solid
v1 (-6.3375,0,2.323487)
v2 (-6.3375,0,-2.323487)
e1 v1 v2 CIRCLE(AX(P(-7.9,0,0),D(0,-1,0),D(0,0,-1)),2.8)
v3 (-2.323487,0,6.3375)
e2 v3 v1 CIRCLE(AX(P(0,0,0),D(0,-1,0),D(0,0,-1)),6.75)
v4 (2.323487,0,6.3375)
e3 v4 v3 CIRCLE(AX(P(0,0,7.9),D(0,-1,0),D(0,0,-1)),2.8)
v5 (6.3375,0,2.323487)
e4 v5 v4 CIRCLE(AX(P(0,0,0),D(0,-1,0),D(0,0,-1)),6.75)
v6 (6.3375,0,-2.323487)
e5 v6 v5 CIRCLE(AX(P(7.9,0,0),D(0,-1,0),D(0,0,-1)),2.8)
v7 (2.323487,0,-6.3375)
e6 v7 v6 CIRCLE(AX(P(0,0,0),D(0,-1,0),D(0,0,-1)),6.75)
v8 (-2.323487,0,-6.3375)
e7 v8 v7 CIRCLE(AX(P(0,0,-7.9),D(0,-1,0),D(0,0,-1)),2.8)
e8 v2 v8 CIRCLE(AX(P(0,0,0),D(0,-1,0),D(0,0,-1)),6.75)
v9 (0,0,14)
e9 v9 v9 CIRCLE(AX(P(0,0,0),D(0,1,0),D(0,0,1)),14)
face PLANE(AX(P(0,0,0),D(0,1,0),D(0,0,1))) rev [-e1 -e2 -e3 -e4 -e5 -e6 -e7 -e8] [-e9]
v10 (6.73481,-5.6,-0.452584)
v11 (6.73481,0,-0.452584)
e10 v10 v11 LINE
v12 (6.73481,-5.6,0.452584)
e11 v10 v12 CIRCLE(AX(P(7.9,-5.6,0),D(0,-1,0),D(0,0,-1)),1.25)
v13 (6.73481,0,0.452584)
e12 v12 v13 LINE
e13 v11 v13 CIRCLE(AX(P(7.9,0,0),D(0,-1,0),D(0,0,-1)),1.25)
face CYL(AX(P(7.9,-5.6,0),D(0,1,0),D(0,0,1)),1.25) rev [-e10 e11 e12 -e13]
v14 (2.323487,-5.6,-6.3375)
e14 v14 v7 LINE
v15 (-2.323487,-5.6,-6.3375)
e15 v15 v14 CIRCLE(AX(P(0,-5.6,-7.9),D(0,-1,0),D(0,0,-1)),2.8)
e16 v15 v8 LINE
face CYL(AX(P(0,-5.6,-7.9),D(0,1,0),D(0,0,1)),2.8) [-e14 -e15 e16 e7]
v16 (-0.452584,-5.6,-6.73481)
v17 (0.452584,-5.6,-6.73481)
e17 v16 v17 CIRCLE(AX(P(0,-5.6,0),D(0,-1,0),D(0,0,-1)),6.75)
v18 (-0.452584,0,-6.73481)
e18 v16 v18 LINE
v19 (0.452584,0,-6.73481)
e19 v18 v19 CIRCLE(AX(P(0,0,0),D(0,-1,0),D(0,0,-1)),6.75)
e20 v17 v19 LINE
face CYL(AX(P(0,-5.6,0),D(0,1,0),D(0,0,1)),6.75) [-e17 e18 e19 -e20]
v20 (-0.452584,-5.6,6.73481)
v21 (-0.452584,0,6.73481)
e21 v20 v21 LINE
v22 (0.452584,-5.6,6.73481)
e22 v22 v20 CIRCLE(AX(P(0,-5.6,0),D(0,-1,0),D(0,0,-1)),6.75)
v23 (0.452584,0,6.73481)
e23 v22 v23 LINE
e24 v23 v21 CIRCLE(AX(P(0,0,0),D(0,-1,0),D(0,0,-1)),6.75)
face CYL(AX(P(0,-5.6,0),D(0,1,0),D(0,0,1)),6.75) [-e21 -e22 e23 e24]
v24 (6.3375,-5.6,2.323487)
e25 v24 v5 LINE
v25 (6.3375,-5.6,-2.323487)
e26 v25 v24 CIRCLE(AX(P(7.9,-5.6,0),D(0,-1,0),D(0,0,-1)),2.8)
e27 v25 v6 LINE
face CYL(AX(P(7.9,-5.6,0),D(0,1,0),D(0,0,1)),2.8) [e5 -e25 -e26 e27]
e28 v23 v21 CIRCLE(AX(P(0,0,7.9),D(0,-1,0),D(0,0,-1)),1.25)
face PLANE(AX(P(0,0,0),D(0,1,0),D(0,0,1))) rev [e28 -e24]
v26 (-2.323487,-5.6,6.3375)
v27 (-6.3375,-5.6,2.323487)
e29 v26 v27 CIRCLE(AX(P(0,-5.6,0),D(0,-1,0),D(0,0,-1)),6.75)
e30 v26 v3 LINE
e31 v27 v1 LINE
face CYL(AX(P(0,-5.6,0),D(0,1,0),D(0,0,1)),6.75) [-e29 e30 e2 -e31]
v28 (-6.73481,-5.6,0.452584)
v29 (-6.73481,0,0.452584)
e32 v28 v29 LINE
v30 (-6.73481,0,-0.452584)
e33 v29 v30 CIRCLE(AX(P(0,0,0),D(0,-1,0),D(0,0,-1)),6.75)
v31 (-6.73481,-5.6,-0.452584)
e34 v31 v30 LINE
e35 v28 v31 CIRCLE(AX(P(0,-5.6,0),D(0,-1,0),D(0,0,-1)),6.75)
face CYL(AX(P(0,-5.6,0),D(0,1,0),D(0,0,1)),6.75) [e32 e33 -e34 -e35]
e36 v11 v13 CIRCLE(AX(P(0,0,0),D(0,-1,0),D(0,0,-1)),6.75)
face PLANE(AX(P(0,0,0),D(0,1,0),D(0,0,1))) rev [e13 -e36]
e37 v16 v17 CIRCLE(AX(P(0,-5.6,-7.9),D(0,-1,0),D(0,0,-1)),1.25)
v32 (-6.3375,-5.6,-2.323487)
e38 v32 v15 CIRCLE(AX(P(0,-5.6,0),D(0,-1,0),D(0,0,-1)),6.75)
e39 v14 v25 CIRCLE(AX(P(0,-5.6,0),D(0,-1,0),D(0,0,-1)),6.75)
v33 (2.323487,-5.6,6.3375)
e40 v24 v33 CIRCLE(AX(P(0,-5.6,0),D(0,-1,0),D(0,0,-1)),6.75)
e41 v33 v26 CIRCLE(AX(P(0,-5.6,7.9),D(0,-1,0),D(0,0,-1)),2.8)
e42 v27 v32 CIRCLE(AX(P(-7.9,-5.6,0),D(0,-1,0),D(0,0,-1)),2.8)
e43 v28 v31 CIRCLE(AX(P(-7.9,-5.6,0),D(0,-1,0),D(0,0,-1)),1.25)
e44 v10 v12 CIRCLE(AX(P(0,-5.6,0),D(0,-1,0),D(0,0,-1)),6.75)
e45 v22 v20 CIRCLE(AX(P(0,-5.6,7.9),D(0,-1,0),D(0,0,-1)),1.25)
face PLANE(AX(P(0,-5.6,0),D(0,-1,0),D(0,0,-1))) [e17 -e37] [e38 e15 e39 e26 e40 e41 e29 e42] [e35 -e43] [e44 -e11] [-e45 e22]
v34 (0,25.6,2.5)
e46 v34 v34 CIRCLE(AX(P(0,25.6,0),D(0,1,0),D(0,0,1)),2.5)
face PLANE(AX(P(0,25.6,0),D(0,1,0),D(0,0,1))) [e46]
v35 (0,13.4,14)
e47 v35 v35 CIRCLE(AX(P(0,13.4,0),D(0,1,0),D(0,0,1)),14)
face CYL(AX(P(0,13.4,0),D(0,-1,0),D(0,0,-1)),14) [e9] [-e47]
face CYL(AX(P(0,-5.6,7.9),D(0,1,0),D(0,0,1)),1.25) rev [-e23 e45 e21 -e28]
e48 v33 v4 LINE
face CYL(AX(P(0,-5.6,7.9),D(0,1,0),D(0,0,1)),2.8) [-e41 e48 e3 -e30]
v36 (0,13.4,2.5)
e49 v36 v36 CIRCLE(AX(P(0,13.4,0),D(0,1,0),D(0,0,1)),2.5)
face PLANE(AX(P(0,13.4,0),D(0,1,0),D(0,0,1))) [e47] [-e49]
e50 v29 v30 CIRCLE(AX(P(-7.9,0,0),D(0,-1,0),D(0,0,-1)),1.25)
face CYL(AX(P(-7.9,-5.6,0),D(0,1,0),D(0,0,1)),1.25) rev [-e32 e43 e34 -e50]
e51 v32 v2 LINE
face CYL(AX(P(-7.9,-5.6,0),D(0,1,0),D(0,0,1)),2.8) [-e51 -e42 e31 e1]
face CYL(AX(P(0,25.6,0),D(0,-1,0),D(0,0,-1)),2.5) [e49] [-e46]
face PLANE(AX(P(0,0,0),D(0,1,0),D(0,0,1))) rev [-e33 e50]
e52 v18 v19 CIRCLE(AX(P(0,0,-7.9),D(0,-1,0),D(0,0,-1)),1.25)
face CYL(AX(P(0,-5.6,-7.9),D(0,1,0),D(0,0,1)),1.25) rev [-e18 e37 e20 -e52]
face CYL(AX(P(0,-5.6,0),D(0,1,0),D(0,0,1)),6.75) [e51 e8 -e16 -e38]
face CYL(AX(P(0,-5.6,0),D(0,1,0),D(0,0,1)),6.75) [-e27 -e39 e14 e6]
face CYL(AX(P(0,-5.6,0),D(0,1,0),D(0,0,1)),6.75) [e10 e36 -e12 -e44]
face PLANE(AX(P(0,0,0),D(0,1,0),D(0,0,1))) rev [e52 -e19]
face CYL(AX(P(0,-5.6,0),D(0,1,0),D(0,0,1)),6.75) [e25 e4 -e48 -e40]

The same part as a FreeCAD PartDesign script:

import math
import FreeCAD as App
import Part
import Sketcher
from FreeCAD import Vector
Q = App.Units.Quantity

doc = App.newDocument("Part")
body = doc.addObject("PartDesign::Body", "Body")

# Sketch on XZ plane
sketch1 = body.newObject("Sketcher::SketchObject", "Sketch")
sketch1.AttachmentSupport = (doc.getObject("XZ_Plane"), [""])
sketch1.MapMode = "FlatFace"
sketch1.addGeometry(Part.Circle(Vector(0, 0, 0), Vector(0, 0, 1), 14), False)
sketch1.addConstraint(Sketcher.Constraint("Coincident", 0, 3, -1, 1))
sketch1.addConstraint(Sketcher.Constraint("Diameter", 0, Q("28 mm")))
pad1 = body.newObject("PartDesign::Pad", "Pad")
pad1.Profile = sketch1
pad1.Length = 13.4
pad1.Reversed = True

# Sketch on XZ plane
sketch2 = body.newObject("Sketcher::SketchObject", "Sketch001")
sketch2.AttachmentSupport = (doc.getObject("XZ_Plane"), [""])
sketch2.MapMode = "FlatFace"
sketch2.AttachmentOffset = App.Placement(Vector(0, 0, -13.4), App.Rotation())
sketch2.addGeometry(Part.Circle(Vector(0, 0, 0), Vector(0, 0, 1), 2.5), False)
sketch2.addConstraint(Sketcher.Constraint("Coincident", 0, 3, -1, 1))
sketch2.addConstraint(Sketcher.Constraint("Diameter", 0, Q("5 mm")))
pad2 = body.newObject("PartDesign::Pad", "Pad001")
pad2.Profile = sketch2
pad2.Length = 12.2
pad2.Reversed = True

# Sketch on XZ plane
sketch3 = body.newObject("Sketcher::SketchObject", "Sketch002")
sketch3.AttachmentSupport = (doc.getObject("XZ_Plane"), [""])
sketch3.MapMode = "FlatFace"
sketch3.addGeometry(Part.ArcOfCircle(Part.Circle(Vector(-7.9, 0, 0), Vector(0, 0, 1), 2.8), math.radians(56), math.radians(304)), False)
sketch3.addGeometry(Part.ArcOfCircle(Part.Circle(Vector(0, 0, 0), Vector(0, 0, 1), 6.8), math.radians(-160), math.radians(-110)), False)
sketch3.addGeometry(Part.ArcOfCircle(Part.Circle(Vector(0, -7.9, 0), Vector(0, 0, 1), 2.8), math.radians(146), math.radians(394)), False)
sketch3.addGeometry(Part.ArcOfCircle(Part.Circle(Vector(0, 0, 0), Vector(0, 0, 1), 6.8), math.radians(-70), math.radians(-20)), False)
sketch3.addGeometry(Part.ArcOfCircle(Part.Circle(Vector(7.9, 0, 0), Vector(0, 0, 1), 2.8), math.radians(-124), math.radians(124)), False)
sketch3.addGeometry(Part.ArcOfCircle(Part.Circle(Vector(0, 0, 0), Vector(0, 0, 1), 6.8), math.radians(20), math.radians(70)), False)
sketch3.addGeometry(Part.ArcOfCircle(Part.Circle(Vector(0, 7.9, 0), Vector(0, 0, 1), 2.8), math.radians(-34), math.radians(214)), False)
sketch3.addGeometry(Part.ArcOfCircle(Part.Circle(Vector(0, 0, 0), Vector(0, 0, 1), 6.8), math.radians(110), math.radians(160)), False)
sketch3.addGeometry(Part.ArcOfCircle(Part.Circle(Vector(0, 0, 0), Vector(0, 0, 1), 6.8), math.radians(-3.84), math.radians(3.84)), False)
sketch3.addGeometry(Part.ArcOfCircle(Part.Circle(Vector(7.9, 0, 0), Vector(0, 0, 1), 1.2), math.radians(-159), math.radians(159)), False)
sketch3.addGeometry(Part.ArcOfCircle(Part.Circle(Vector(0, 0, 0), Vector(0, 0, 1), 6.8), math.radians(-93.84), math.radians(-86.16)), False)
sketch3.addGeometry(Part.ArcOfCircle(Part.Circle(Vector(0, -7.9, 0), Vector(0, 0, 1), 1.2), math.radians(111), math.radians(429)), False)
sketch3.addGeometry(Part.ArcOfCircle(Part.Circle(Vector(0, 0, 0), Vector(0, 0, 1), 6.8), math.radians(86.16), math.radians(93.84)), False)
sketch3.addGeometry(Part.ArcOfCircle(Part.Circle(Vector(0, 7.9, 0), Vector(0, 0, 1), 1.2), math.radians(-69), math.radians(249)), False)
sketch3.addGeometry(Part.ArcOfCircle(Part.Circle(Vector(0, 0, 0), Vector(0, 0, 1), 6.8), math.radians(176.16), math.radians(183.84)), False)
sketch3.addGeometry(Part.ArcOfCircle(Part.Circle(Vector(-7.9, 0, 0), Vector(0, 0, 1), 1.2), math.radians(21), math.radians(339)), False)
sketch3.addConstraint(Sketcher.Constraint("Coincident", 0, 2, 1, 1))
sketch3.addConstraint(Sketcher.Constraint("Coincident", 1, 2, 2, 1))
sketch3.addConstraint(Sketcher.Constraint("Coincident", 2, 2, 3, 1))
sketch3.addConstraint(Sketcher.Constraint("Coincident", 3, 2, 4, 1))
sketch3.addConstraint(Sketcher.Constraint("Coincident", 4, 2, 5, 1))
sketch3.addConstraint(Sketcher.Constraint("Coincident", 5, 2, 6, 1))
sketch3.addConstraint(Sketcher.Constraint("Coincident", 6, 2, 7, 1))
sketch3.addConstraint(Sketcher.Constraint("Coincident", 7, 2, 0, 1))
sketch3.addConstraint(Sketcher.Constraint("Coincident", 8, 1, 9, 1))
sketch3.addConstraint(Sketcher.Constraint("Coincident", 9, 2, 8, 2))
sketch3.addConstraint(Sketcher.Constraint("Coincident", 10, 1, 11, 1))
sketch3.addConstraint(Sketcher.Constraint("Coincident", 11, 2, 10, 2))
sketch3.addConstraint(Sketcher.Constraint("Coincident", 12, 1, 13, 1))
sketch3.addConstraint(Sketcher.Constraint("Coincident", 13, 2, 12, 2))
sketch3.addConstraint(Sketcher.Constraint("Coincident", 14, 1, 15, 1))
sketch3.addConstraint(Sketcher.Constraint("Coincident", 15, 2, 14, 2))
sketch3.addConstraint(Sketcher.Constraint("Coincident", 1, 3, -1, 1))
sketch3.addConstraint(Sketcher.Constraint("Coincident", 3, 3, -1, 1))
sketch3.addConstraint(Sketcher.Constraint("Coincident", 5, 3, -1, 1))
sketch3.addConstraint(Sketcher.Constraint("Coincident", 7, 3, -1, 1))
sketch3.addConstraint(Sketcher.Constraint("Coincident", 8, 3, -1, 1))
sketch3.addConstraint(Sketcher.Constraint("Coincident", 10, 3, -1, 1))
sketch3.addConstraint(Sketcher.Constraint("Coincident", 12, 3, -1, 1))
sketch3.addConstraint(Sketcher.Constraint("Coincident", 14, 3, -1, 1))
sketch3.addConstraint(Sketcher.Constraint("Coincident", 9, 3, 4, 3))
sketch3.addConstraint(Sketcher.Constraint("Coincident", 11, 3, 2, 3))
sketch3.addConstraint(Sketcher.Constraint("Coincident", 13, 3, 6, 3))
sketch3.addConstraint(Sketcher.Constraint("Coincident", 15, 3, 0, 3))
sketch3.addConstraint(Sketcher.Constraint("Equal", 0, 2))
sketch3.addConstraint(Sketcher.Constraint("Equal", 1, 3))
sketch3.addConstraint(Sketcher.Constraint("Equal", 2, 4))
sketch3.addConstraint(Sketcher.Constraint("Equal", 3, 5))
sketch3.addConstraint(Sketcher.Constraint("Equal", 4, 6))
sketch3.addConstraint(Sketcher.Constraint("Equal", 5, 7))
sketch3.addConstraint(Sketcher.Constraint("Equal", 7, 8))
sketch3.addConstraint(Sketcher.Constraint("Equal", 8, 10))
sketch3.addConstraint(Sketcher.Constraint("Equal", 9, 11))
sketch3.addConstraint(Sketcher.Constraint("Equal", 10, 12))
sketch3.addConstraint(Sketcher.Constraint("Equal", 11, 13))
sketch3.addConstraint(Sketcher.Constraint("Equal", 12, 14))
sketch3.addConstraint(Sketcher.Constraint("Equal", 13, 15))
sketch3.addConstraint(Sketcher.Constraint("Symmetric", 0, 3, 4, 3, -1, 1))
sketch3.addConstraint(Sketcher.Constraint("Symmetric", 2, 3, 6, 3, -1, 1))
sketch3.addConstraint(Sketcher.Constraint("PointOnObject", 0, 3, -1))
sketch3.addConstraint(Sketcher.Constraint("PointOnObject", 2, 3, -2))
sketch3.addConstraint(Sketcher.Constraint("Radius", 0, Q("2.8 mm")))
sketch3.addConstraint(Sketcher.Constraint("Radius", 1, Q("6.75 mm")))
sketch3.addConstraint(Sketcher.Constraint("Radius", 9, Q("1.25 mm")))
sketch3.addConstraint(Sketcher.Constraint("DistanceX", 0, 3, -1, 1, Q("7.9 mm")))
sketch3.addConstraint(Sketcher.Constraint("DistanceY", 2, 3, -1, 1, Q("7.9 mm")))
pad3 = body.newObject("PartDesign::Pad", "Pad002")
pad3.Profile = sketch3
pad3.Length = 5.6

doc.recompute()
